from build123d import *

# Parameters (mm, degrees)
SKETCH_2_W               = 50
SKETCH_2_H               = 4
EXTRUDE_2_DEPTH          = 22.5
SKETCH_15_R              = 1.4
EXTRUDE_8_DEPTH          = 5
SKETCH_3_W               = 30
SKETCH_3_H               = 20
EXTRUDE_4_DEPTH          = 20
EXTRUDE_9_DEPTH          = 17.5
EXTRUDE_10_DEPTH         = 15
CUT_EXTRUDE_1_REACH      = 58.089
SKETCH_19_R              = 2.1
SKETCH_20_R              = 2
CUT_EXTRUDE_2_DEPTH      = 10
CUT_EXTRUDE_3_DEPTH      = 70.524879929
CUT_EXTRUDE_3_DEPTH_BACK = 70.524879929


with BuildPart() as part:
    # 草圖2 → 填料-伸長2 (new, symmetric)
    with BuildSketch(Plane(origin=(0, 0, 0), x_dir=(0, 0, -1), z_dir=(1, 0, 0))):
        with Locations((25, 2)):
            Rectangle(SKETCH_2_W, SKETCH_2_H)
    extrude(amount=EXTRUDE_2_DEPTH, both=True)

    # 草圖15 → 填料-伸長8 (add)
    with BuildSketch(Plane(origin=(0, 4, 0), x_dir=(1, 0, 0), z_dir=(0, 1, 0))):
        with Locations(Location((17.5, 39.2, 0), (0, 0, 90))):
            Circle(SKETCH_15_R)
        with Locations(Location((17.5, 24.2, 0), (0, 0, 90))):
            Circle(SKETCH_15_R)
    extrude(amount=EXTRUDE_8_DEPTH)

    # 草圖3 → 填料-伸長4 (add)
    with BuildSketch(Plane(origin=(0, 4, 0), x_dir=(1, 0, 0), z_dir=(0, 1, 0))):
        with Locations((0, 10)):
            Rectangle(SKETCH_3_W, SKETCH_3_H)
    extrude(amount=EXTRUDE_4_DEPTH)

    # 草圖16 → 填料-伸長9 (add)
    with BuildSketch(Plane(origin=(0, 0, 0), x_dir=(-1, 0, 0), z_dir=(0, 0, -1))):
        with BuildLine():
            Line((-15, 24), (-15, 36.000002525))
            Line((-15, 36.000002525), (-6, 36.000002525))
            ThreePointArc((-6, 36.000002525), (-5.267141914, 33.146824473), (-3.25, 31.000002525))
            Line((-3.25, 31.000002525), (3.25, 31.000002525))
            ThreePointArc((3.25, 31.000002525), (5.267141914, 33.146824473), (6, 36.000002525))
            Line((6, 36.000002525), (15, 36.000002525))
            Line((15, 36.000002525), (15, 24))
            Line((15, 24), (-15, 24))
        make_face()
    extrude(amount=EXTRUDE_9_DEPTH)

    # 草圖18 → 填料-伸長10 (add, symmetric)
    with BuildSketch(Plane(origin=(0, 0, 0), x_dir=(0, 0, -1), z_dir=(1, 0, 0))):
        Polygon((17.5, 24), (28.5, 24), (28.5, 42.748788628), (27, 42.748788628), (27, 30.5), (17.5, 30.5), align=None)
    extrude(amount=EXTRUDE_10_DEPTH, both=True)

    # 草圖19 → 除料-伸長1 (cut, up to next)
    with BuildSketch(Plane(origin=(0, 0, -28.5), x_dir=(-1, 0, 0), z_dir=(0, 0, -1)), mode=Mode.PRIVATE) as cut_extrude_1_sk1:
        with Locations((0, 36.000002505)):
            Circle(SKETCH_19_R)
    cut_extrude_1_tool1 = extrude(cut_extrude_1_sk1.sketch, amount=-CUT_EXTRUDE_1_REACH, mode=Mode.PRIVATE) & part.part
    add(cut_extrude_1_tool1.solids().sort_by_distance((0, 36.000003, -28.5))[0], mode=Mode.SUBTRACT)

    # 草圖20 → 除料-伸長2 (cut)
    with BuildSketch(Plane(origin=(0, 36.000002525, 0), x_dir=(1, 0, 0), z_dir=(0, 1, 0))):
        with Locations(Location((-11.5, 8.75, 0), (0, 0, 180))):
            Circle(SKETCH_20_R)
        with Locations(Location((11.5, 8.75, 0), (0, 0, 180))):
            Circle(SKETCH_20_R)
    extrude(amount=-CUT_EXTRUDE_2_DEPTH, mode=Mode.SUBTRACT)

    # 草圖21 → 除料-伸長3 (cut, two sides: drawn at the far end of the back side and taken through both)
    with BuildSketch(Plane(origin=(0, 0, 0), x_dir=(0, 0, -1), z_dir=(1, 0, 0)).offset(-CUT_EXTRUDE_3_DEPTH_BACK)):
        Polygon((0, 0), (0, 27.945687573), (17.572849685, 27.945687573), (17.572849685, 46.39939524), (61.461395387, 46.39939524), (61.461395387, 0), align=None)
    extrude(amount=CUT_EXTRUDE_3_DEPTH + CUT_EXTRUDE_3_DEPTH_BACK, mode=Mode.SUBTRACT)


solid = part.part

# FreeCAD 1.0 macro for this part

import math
import FreeCAD as App
import Part
import Sketcher
from FreeCAD import Vector


def add_polygon(sketch, points):
    """Adds a closed chain of lines whose ends are joined by coincident constraints."""
    first, n = sketch.GeometryCount, len(points)
    for a, b in zip(points, points[1:] + points[:1]):
        sketch.addGeometry(Part.LineSegment(App.Vector(*a, 0), App.Vector(*b, 0)), False)
    for i in range(n):
        sketch.addConstraint(Sketcher.Constraint("Coincident", first + i, 2, first + (i + 1) % n, 1))

doc = App.newDocument("Part")
body = doc.addObject("PartDesign::Body", "Body")

sketch1 = body.newObject("Sketcher::SketchObject", "Sketch")
sketch1.AttachmentSupport = (doc.getObject("YZ_Plane"), [""])
sketch1.MapMode = "FlatFace"
add_polygon(sketch1, [(4, 0), (0, 0), (0, -50), (4, -50)])
sketch1.addConstraint([
    Sketcher.Constraint("Horizontal", 0),
    Sketcher.Constraint("Vertical", 1),
    Sketcher.Constraint("Horizontal", 2),
    Sketcher.Constraint("Vertical", 3),
    Sketcher.Constraint("Coincident", 0, 2, -1, 1),
    Sketcher.Constraint("DistanceX", 0, 2, 0, 1, 4.0),
    Sketcher.Constraint("DistanceY", 1, 2, 1, 1, 50.0),
])
pad1 = body.newObject("PartDesign::Pad", "Pad")
pad1.Profile = sketch1
pad1.Length = 45
pad1.Midplane = True

sketch2 = body.newObject("Sketcher::SketchObject", "Sketch001")
sketch2.AttachmentSupport = (doc.getObject("XZ_Plane"), [""])
sketch2.MapMode = "FlatFace"
sketch2.AttachmentOffset = App.Placement(Vector(0, 0, -4), App.Rotation())
sketch2.addGeometry([
    Part.Circle(Vector(17.5, -39.2, 0), Vector(0, 0, 1), 1.4),
    Part.Circle(Vector(17.5, -24.2, 0), Vector(0, 0, 1), 1.4),
], False)
sketch2.addConstraint([
    Sketcher.Constraint("Equal", 0, 1),
    Sketcher.Constraint("Vertical", 0, 3, 1, 3),
    Sketcher.Constraint("Diameter", 0, 2.8),
    Sketcher.Constraint("DistanceY", 0, 3, 1, 3, 15.0),
    Sketcher.Constraint("DistanceX", -1, 1, 0, 3, 17.5),
    Sketcher.Constraint("DistanceY", 0, 3, -1, 1, 39.2),
])
pad2 = body.newObject("PartDesign::Pad", "Pad001")
pad2.Profile = sketch2
pad2.Length = 5
pad2.Reversed = True

sketch3 = body.newObject("Sketcher::SketchObject", "Sketch002")
sketch3.AttachmentSupport = (doc.getObject("XZ_Plane"), [""])
sketch3.MapMode = "FlatFace"
sketch3.AttachmentOffset = App.Placement(Vector(0, 0, -4), App.Rotation())
add_polygon(sketch3, [(-15, -20), (-15, 0), (15, 0), (15, -20)])
sketch3.addConstraint([
    Sketcher.Constraint("Vertical", 0),
    Sketcher.Constraint("Horizontal", 1),
    Sketcher.Constraint("Vertical", 2),
    Sketcher.Constraint("Horizontal", 3),
    Sketcher.Constraint("Symmetric", 0, 2, 1, 2, -1, 1),
    Sketcher.Constraint("DistanceX", 1, 1, 1, 2, 30.0),
    Sketcher.Constraint("DistanceY", 0, 1, 0, 2, 20.0),
])
pad3 = body.newObject("PartDesign::Pad", "Pad002")
pad3.Profile = sketch3
pad3.Length = 20
pad3.Reversed = True

sketch4 = body.newObject("Sketcher::SketchObject", "Sketch003")
sketch4.AttachmentSupport = (doc.getObject("XY_Plane"), [""])
sketch4.MapMode = "FlatFace"
sketch4.addGeometry([
    Part.LineSegment(Vector(15, 36.000003, 0), Vector(15, 24, 0)),
    Part.LineSegment(Vector(15, 24, 0), Vector(-15, 24, 0)),
    Part.LineSegment(Vector(-15, 24, 0), Vector(-15, 36.000003, 0)),
    Part.LineSegment(Vector(-15, 36.000003, 0), Vector(-6, 36.000003, 0)),
    Part.ArcOfCircle(Part.Circle(Vector(-0.079545, 36.000003, 0), Vector(0, 0, 1), 5.920455), math.radians(-180), math.radians(-122.378413)),
    Part.LineSegment(Vector(-3.25, 31.000003, 0), Vector(3.25, 31.000003, 0)),
    Part.ArcOfCircle(Part.Circle(Vector(0.079545, 36.000003, 0), Vector(0, 0, 1), 5.920455), math.radians(-57.621587), math.radians(0)),
    Part.LineSegment(Vector(6, 36.000003, 0), Vector(15, 36.000003, 0)),
], False)
sketch4.addConstraint([
    Sketcher.Constraint("Coincident", 0, 2, 1, 1),
    Sketcher.Constraint("Coincident", 1, 2, 2, 1),
    Sketcher.Constraint("Coincident", 2, 2, 3, 1),
    Sketcher.Constraint("Coincident", 3, 2, 4, 1),
    Sketcher.Constraint("Coincident", 4, 2, 5, 1),
    Sketcher.Constraint("Coincident", 5, 2, 6, 1),
    Sketcher.Constraint("Coincident", 6, 2, 7, 1),
    Sketcher.Constraint("Coincident", 7, 2, 0, 1),
    Sketcher.Constraint("Vertical", 0),
    Sketcher.Constraint("Horizontal", 1),
    Sketcher.Constraint("Vertical", 2),
    Sketcher.Constraint("Horizontal", 3),
    Sketcher.Constraint("Horizontal", 5),
    Sketcher.Constraint("Horizontal", 7),
    Sketcher.Constraint("Equal", 4, 6),
    Sketcher.Constraint("Symmetric", 4, 3, 6, 3, -2),
    Sketcher.Constraint("Symmetric", 2, 2, 7, 2, -2),
    Sketcher.Constraint("Horizontal", 6, 3, 2, 2),
    Sketcher.Constraint("DistanceX", 1, 2, 1, 1, 30.0),
    Sketcher.Constraint("DistanceX", 3, 1, 3, 2, 9.0),
    Sketcher.Constraint("DistanceX", 5, 1, 5, 2, 6.5),
    Sketcher.Constraint("DistanceY", -1, 1, 0, 2, 24.0),
    Sketcher.Constraint("DistanceY", 4, 2, 3, 2, 5.0),
    Sketcher.Constraint("DistanceY", 0, 2, 0, 1, 12.000003),
])
pad4 = body.newObject("PartDesign::Pad", "Pad003")
pad4.Profile = sketch4
pad4.Length = 17.5
pad4.Reversed = True

sketch5 = body.newObject("Sketcher::SketchObject", "Sketch004")
sketch5.AttachmentSupport = (doc.getObject("YZ_Plane"), [""])
sketch5.MapMode = "FlatFace"
add_polygon(sketch5, [(24, -17.5), (24, -28.5), (42.748789, -28.5), (42.748789, -27), (30.5, -27), (30.5, -17.5)])
sketch5.addConstraint([
    Sketcher.Constraint("Vertical", 0),
    Sketcher.Constraint("Horizontal", 1),
    Sketcher.Constraint("Vertical", 2),
    Sketcher.Constraint("Horizontal", 3),
    Sketcher.Constraint("Vertical", 4),
    Sketcher.Constraint("Horizontal", 5),
    Sketcher.Constraint("DistanceY", 0, 2, 0, 1, 11.0),
    Sketcher.Constraint("DistanceX", 5, 2, 5, 1, 6.5),
    Sketcher.Constraint("DistanceY", 2, 1, 2, 2, 1.5),
    Sketcher.Constraint("DistanceX", -1, 1, 0, 2, 24.0),
    Sketcher.Constraint("DistanceY", 2, 2, -1, 1, 27.0),
    Sketcher.Constraint("DistanceX", 1, 1, 1, 2, 18.748789),
])
pad5 = body.newObject("PartDesign::Pad", "Pad004")
pad5.Profile = sketch5
pad5.Length = 30
pad5.Midplane = True

sketch6 = body.newObject("Sketcher::SketchObject", "Sketch005")
sketch6.AttachmentSupport = (doc.getObject("XY_Plane"), [""])
sketch6.MapMode = "FlatFace"
sketch6.AttachmentOffset = App.Placement(Vector(0, 0, -28.5), App.Rotation())
sketch6.addGeometry(Part.Circle(Vector(0, 36.000003, 0), Vector(0, 0, 1), 2.1), False)
sketch6.addConstraint([
    Sketcher.Constraint("PointOnObject", 0, 3, -2),
    Sketcher.Constraint("Diameter", 0, 4.2),
    Sketcher.Constraint("DistanceY", -1, 1, 0, 3, 36.000003),
])
pocket1 = body.newObject("PartDesign::Pocket", "Pocket")
pocket1.Profile = sketch6
pocket1.Type = "UpToFirst"
pocket1.Reversed = True

sketch7 = body.newObject("Sketcher::SketchObject", "Sketch006")
sketch7.AttachmentSupport = (doc.getObject("XZ_Plane"), [""])
sketch7.MapMode = "FlatFace"
sketch7.AttachmentOffset = App.Placement(Vector(0, 0, -36.000003), App.Rotation())
sketch7.addGeometry([
    Part.Circle(Vector(-11.5, -8.75, 0), Vector(0, 0, 1), 2),
    Part.Circle(Vector(11.5, -8.75, 0), Vector(0, 0, 1), 2),
], False)
sketch7.addConstraint([
    Sketcher.Constraint("Equal", 0, 1),
    Sketcher.Constraint("Symmetric", 0, 3, 1, 3, -2),
    Sketcher.Constraint("Diameter", 0, 4.0),
    Sketcher.Constraint("DistanceX", 0, 3, 1, 3, 23.0),
    Sketcher.Constraint("DistanceY", 0, 3, -1, 1, 8.75),
])
pocket2 = body.newObject("PartDesign::Pocket", "Pocket001")
pocket2.Profile = sketch7
pocket2.Length = 10
pocket2.Reversed = True

sketch8 = body.newObject("Sketcher::SketchObject", "Sketch007")
sketch8.AttachmentSupport = (doc.getObject("YZ_Plane"), [""])
sketch8.MapMode = "FlatFace"
add_polygon(sketch8, [(27.945688, 0), (0, 0), (0, -61.461395), (46.399395, -61.461395), (46.399395, -17.57285), (27.945688, -17.57285)])
sketch8.addConstraint([
    Sketcher.Constraint("Horizontal", 0),
    Sketcher.Constraint("Vertical", 1),
    Sketcher.Constraint("Horizontal", 2),
    Sketcher.Constraint("Vertical", 3),
    Sketcher.Constraint("Horizontal", 4),
    Sketcher.Constraint("Vertical", 5),
    Sketcher.Constraint("Coincident", 0, 2, -1, 1),
    Sketcher.Constraint("DistanceY", 5, 1, 5, 2, 17.57285),
    Sketcher.Constraint("DistanceX", 0, 2, 0, 1, 27.945688),
    Sketcher.Constraint("DistanceX", 2, 1, 2, 2, 46.399395),
    Sketcher.Constraint("DistanceY", 1, 2, 1, 1, 61.461395),
])
pocket3 = body.newObject("PartDesign::Pocket", "Pocket002")
pocket3.Profile = sketch8
pocket3.Type = "ThroughAll"
pocket3.Midplane = True

doc.recompute()
